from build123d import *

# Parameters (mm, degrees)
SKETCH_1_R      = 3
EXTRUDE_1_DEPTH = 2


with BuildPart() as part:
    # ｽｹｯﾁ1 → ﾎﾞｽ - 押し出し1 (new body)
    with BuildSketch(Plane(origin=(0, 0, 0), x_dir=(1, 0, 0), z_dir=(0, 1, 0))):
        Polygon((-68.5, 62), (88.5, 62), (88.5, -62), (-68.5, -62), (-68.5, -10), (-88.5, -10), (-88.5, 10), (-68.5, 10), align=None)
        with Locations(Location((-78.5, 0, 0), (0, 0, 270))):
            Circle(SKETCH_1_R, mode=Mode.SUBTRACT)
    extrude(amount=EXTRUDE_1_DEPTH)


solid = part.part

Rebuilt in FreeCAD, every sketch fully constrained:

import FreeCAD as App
import Part
import Sketcher


def add_polygon(sketch, points):
    """Adds a closed chain of lines whose ends are joined by coincident constraints."""
    first, n = sketch.GeometryCount, len(points)
    for a, b in zip(points, points[1:] + points[:1]):
        sketch.addGeometry(Part.LineSegment(App.Vector(*a, 0), App.Vector(*b, 0)), False)
    for i in range(n):
        sketch.addConstraint(Sketcher.Constraint("Coincident", first + i, 2, first + (i + 1) % n, 1))

doc = App.newDocument("Part")
body = doc.addObject("PartDesign::Body", "Body")

sketch1 = body.newObject("Sketcher::SketchObject", "Sketch")
sketch1.AttachmentSupport = (doc.getObject("XZ_Plane"), [""])
sketch1.MapMode = "FlatFace"
add_polygon(sketch1, [(88.5, -62), (-68.5, -62), (-68.5, -10), (-88.5, -10), (-88.5, 10), (-68.5, 10), (-68.5, 62), (88.5, 62)])
sketch1.addGeometry(Part.Circle(App.Vector(-78.5, 0, 0), App.Vector(0, 0, 1), 3), False)
sketch1.addConstraint([
    Sketcher.Constraint("Horizontal", 0),
    Sketcher.Constraint("Vertical", 1),
    Sketcher.Constraint("Horizontal", 2),
    Sketcher.Constraint("Vertical", 3),
    Sketcher.Constraint("Horizontal", 4),
    Sketcher.Constraint("Vertical", 5),
    Sketcher.Constraint("Horizontal", 6),
    Sketcher.Constraint("Vertical", 7),
    Sketcher.Constraint("Symmetric", 1, 2, 4, 2, -1),
    Sketcher.Constraint("PointOnObject", 8, 3, -1),
    Sketcher.Constraint("Equal", 4, 3),
    Sketcher.Constraint("Equal", 1, 5),
    Sketcher.Constraint("Diameter", 8, 6.0),
    Sketcher.Constraint("DistanceX", 0, 2, 0, 1, 157.0),
    Sketcher.Constraint("DistanceX", 2, 2, 2, 1, 20.0),
    Sketcher.Constraint("DistanceY", 1, 1, 1, 2, 52.0),
    Sketcher.Constraint("DistanceX", 8, 3, 0, 2, 10.0),
    Sketcher.Constraint("DistanceX", 8, 3, -1, 1, 78.5),
])
pad1 = body.newObject("PartDesign::Pad", "Pad")
pad1.Profile = sketch1
pad1.Length = 2
pad1.Reversed = True

doc.recompute()
